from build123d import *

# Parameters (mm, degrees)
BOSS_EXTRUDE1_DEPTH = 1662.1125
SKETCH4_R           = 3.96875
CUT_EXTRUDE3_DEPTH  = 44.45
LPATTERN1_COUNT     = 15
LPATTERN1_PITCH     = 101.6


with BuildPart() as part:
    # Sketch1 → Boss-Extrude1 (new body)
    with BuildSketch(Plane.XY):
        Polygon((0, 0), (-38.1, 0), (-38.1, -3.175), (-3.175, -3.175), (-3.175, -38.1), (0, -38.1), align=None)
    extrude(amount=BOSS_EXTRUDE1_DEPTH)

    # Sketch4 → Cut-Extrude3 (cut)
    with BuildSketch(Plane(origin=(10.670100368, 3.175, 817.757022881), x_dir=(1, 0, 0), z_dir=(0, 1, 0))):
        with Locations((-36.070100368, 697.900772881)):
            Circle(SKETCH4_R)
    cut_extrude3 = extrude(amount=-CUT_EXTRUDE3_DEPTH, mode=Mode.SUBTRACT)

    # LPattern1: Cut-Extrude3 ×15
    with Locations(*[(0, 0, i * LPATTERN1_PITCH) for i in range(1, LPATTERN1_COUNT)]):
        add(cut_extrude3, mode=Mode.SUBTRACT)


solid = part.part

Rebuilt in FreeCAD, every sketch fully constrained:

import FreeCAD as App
import Part
import Sketcher
Q = App.Units.Quantity


def add_polygon(sketch, points):
    """Adds a closed chain of lines whose ends are joined by coincident constraints."""
    first, n = sketch.GeometryCount, len(points)
    for a, b in zip(points, points[1:] + points[:1]):
        sketch.addGeometry(Part.LineSegment(App.Vector(*a, 0), App.Vector(*b, 0)), False)
    for i in range(n):
        sketch.addConstraint(Sketcher.Constraint("Coincident", first + i, 2, first + (i + 1) % n, 1))

doc = App.newDocument("Part")
body = doc.addObject("PartDesign::Body", "Body")

# Sketch on XY plane
sketch1 = body.newObject("Sketcher::SketchObject", "Sketch")
sketch1.AttachmentSupport = (doc.getObject("XY_Plane"), [""])
sketch1.MapMode = "FlatFace"
add_polygon(sketch1, [(0, 0), (-38.1, 0), (-38.1, -3.2), (-3.2, -3.2), (-3.2, -38.1), (0, -38.1)])  # lines 0-5
sketch1.addConstraint([
    Sketcher.Constraint("Horizontal", 0),
    Sketcher.Constraint("Vertical", 1),
    Sketcher.Constraint("Horizontal", 2),
    Sketcher.Constraint("Vertical", 3),
    Sketcher.Constraint("Horizontal", 4),
    Sketcher.Constraint("Vertical", 5),
    Sketcher.Constraint("Coincident", 5, 2, -1, 1),
    Sketcher.Constraint("Equal", 4, 1),
    Sketcher.Constraint("Equal", 2, 3),
    Sketcher.Constraint("DistanceX", 0, 2, 0, 1, Q("1.5 in")),
    Sketcher.Constraint("DistanceX", 2, 1, 2, 2, Q("1.375 in")),
])
pad1 = body.newObject("PartDesign::Pad", "Pad")
pad1.Profile = sketch1
pad1.Length = Q("65.4375 in")

# Sketch on XZ plane
sketch2 = body.newObject("Sketcher::SketchObject", "Sketch001")
sketch2.AttachmentSupport = (doc.getObject("XZ_Plane"), [""])
sketch2.MapMode = "FlatFace"
sketch2.AttachmentOffset = App.Placement(App.Vector(0, 0, -0.125 * 25.4), App.Rotation())
sketch2.addGeometry(Part.Circle(App.Vector(-25.4, 119.9, 0), App.Vector(0, 0, 1), 4), False)
sketch2.addConstraint([
    Sketcher.Constraint("Diameter", 0, Q("0.3125 in")),
    Sketcher.Constraint("DistanceX", 0, 3, -1, 1, Q("1 in")),
    Sketcher.Constraint("DistanceY", -1, 1, 0, 3, Q("4.71875 in")),
])
pocket1 = body.newObject("PartDesign::Pocket", "Pocket")
pocket1.Profile = sketch2
pocket1.Length = Q("1.75 in")
pocket1.Reversed = True
doc.recompute()

linearpattern = body.newObject("PartDesign::LinearPattern", "LinearPattern")
linearpattern.Originals = [pocket1]
linearpattern.Direction = (doc.getObject("Z_Axis"), [""])
linearpattern.Mode = "offset"
linearpattern.Offset = Q("4 in")
linearpattern.Occurrences = 15
body.Tip = linearpattern

doc.recompute()
